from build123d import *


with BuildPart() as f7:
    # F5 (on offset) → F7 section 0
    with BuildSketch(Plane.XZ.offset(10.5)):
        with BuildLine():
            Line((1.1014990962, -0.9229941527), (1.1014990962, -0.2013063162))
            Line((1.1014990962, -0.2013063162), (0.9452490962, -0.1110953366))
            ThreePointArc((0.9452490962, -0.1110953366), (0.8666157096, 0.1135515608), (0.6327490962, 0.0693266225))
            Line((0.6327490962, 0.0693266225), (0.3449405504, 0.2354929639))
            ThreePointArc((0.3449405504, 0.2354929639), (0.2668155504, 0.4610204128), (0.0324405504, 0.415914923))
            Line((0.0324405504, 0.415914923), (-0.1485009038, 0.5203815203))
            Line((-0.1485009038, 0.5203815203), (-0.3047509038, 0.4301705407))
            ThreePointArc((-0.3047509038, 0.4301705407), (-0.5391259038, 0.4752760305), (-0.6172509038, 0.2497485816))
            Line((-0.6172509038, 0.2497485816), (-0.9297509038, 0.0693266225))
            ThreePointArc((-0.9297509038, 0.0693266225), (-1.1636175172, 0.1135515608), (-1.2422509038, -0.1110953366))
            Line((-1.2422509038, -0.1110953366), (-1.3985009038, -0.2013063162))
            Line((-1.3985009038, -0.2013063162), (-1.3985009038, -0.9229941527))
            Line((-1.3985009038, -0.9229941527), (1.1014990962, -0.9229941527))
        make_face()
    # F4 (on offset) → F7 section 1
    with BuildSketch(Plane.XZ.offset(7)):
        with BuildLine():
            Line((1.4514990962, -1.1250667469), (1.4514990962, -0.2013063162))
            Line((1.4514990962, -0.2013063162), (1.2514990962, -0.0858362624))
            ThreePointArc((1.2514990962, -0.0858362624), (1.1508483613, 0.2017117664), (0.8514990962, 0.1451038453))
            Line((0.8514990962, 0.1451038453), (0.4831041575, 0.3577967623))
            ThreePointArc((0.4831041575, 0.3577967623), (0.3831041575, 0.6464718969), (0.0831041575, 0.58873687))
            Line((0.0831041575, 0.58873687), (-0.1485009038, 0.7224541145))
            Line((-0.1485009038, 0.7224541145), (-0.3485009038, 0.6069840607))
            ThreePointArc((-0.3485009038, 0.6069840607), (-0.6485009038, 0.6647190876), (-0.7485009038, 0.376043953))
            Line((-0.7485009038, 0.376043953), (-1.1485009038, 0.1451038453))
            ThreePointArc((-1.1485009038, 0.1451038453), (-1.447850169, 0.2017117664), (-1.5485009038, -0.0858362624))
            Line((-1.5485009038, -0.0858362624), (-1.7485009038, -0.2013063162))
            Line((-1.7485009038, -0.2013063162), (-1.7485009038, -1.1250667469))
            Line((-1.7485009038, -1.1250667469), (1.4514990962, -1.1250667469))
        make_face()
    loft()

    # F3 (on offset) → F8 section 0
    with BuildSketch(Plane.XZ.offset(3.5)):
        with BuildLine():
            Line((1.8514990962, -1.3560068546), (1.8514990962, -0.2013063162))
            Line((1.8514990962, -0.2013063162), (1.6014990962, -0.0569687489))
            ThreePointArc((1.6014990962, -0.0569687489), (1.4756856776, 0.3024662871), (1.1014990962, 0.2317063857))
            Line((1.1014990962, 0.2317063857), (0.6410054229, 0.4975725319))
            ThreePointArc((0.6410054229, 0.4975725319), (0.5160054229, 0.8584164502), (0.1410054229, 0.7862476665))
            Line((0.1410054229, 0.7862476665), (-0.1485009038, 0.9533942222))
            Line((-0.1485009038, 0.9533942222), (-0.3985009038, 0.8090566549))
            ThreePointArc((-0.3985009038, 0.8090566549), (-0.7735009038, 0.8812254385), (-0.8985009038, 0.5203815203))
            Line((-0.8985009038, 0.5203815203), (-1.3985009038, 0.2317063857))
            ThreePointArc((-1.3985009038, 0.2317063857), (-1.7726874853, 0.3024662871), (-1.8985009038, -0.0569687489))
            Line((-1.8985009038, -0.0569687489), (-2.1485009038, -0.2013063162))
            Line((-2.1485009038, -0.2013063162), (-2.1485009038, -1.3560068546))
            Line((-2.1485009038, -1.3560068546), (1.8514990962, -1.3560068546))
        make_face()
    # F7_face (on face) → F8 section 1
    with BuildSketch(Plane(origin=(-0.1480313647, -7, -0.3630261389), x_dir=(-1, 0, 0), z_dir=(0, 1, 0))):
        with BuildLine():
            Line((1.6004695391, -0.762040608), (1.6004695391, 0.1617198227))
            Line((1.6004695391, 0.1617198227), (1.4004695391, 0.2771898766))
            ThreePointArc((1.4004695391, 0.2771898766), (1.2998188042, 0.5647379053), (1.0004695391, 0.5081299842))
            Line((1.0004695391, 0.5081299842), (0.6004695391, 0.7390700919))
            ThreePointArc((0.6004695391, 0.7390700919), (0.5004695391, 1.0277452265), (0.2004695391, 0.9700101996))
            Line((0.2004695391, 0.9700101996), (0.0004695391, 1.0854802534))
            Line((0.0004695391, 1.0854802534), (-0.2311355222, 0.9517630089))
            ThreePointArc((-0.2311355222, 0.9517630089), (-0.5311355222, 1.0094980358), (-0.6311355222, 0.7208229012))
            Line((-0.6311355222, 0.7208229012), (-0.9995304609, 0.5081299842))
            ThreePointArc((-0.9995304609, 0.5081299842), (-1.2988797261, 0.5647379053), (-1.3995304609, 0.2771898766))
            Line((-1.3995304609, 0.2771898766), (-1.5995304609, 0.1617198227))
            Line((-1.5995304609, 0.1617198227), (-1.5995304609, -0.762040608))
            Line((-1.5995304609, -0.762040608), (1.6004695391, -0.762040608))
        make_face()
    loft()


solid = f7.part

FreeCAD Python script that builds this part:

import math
import FreeCAD as App
import Part
import Sketcher
Q = App.Units.Quantity

doc = App.newDocument("Part")
body = doc.addObject("PartDesign::Body", "Body")

# Sketch on XZ plane
sketch1 = body.newObject("Sketcher::SketchObject", "Sketch")
sketch1.AttachmentSupport = (doc.getObject("XZ_Plane"), [""])
sketch1.MapMode = "FlatFace"
sketch1.AttachmentOffset = App.Placement(App.Vector(0, 0, 10.5), App.Rotation())
sketch1.addGeometry([
    Part.LineSegment(App.Vector(1.1, -0.92, 0), App.Vector(1.1, -0.2, 0)),  # 0
    Part.LineSegment(App.Vector(1.1, -0.2, 0), App.Vector(0.95, -0.11, 0)),  # 1
    Part.ArcOfCircle(Part.Circle(App.Vector(0.78, -0.04, 0), App.Vector(0, 0, 1), 0.18), math.radians(-21), math.radians(141)),  # 2
    Part.LineSegment(App.Vector(0.63, 0.07, 0), App.Vector(0.34, 0.24, 0)),  # 3
    Part.ArcOfCircle(Part.Circle(App.Vector(0.18, 0.3, 0), App.Vector(0, 0, 1), 0.18), math.radians(-22), math.radians(142)),  # 4
    Part.LineSegment(App.Vector(0.03, 0.42, 0), App.Vector(-0.15, 0.52, 0)),  # 5
    Part.LineSegment(App.Vector(-0.15, 0.52, 0), App.Vector(-0.3, 0.43, 0)),  # 6
    Part.ArcOfCircle(Part.Circle(App.Vector(-0.45, 0.32, 0), App.Vector(0, 0, 1), 0.18), math.radians(38), math.radians(202)),  # 7
    Part.LineSegment(App.Vector(-0.62, 0.25, 0), App.Vector(-0.93, 0.07, 0)),  # 8
    Part.ArcOfCircle(Part.Circle(App.Vector(-1.07, -0.04, 0), App.Vector(0, 0, 1), 0.18), math.radians(39), math.radians(201)),  # 9
    Part.LineSegment(App.Vector(-1.24, -0.11, 0), App.Vector(-1.4, -0.2, 0)),  # 10
    Part.LineSegment(App.Vector(-1.4, -0.2, 0), App.Vector(-1.4, -0.92, 0)),  # 11
    Part.LineSegment(App.Vector(-1.4, -0.92, 0), App.Vector(1.1, -0.92, 0)),  # 12
], False)
sketch1.addConstraint([
    Sketcher.Constraint("Coincident", 0, 2, 1, 1),
    Sketcher.Constraint("Coincident", 1, 2, 2, 1),
    Sketcher.Constraint("Coincident", 2, 2, 3, 1),
    Sketcher.Constraint("Coincident", 3, 2, 4, 1),
    Sketcher.Constraint("Coincident", 4, 2, 5, 1),
    Sketcher.Constraint("Coincident", 5, 2, 6, 1),
    Sketcher.Constraint("Coincident", 6, 2, 7, 1),
    Sketcher.Constraint("Coincident", 7, 2, 8, 1),
    Sketcher.Constraint("Coincident", 8, 2, 9, 1),
    Sketcher.Constraint("Coincident", 9, 2, 10, 1),
    Sketcher.Constraint("Coincident", 10, 2, 11, 1),
    Sketcher.Constraint("Coincident", 11, 2, 12, 1),
    Sketcher.Constraint("Coincident", 12, 2, 0, 1),
    Sketcher.Constraint("Vertical", 0),
    Sketcher.Constraint("Vertical", 11),
    Sketcher.Constraint("Horizontal", 12),
    Sketcher.Constraint("Equal", 4, 7),
    Sketcher.Constraint("Equal", 2, 9),
    Sketcher.Constraint("Parallel", 1, 3),
    Sketcher.Constraint("Parallel", 3, 5),
    Sketcher.Constraint("Parallel", 6, 8),
    Sketcher.Constraint("Parallel", 8, 10),
    Sketcher.Constraint("Horizontal", 2, 3, 9, 3),
    Sketcher.Constraint("Horizontal", 2, 2, 8, 2),
    Sketcher.Constraint("Horizontal", 1, 2, 9, 2),
    Sketcher.Constraint("Horizontal", 0, 2, 10, 2),
    Sketcher.Constraint("Equal", 1, 6),
    Sketcher.Constraint("Equal", 6, 10),
    Sketcher.Constraint("Angle", 1, Q("150 deg")),
    Sketcher.Constraint("DistanceX", 12, 1, 12, 2, 2.5),
    Sketcher.Constraint("Radius", 4, 0.182292),
    Sketcher.Constraint("Radius", 2, 0.182466),
    Sketcher.Constraint("DistanceX", 8, 2, 6, 2, 0.625),
    Sketcher.Constraint("DistanceX", 9, 2, 7, 2, 0.625),
    Sketcher.Constraint("DistanceX", -1, 1, 0, 2, 1.101499),
    Sketcher.Constraint("DistanceX", 5, 2, -1, 1, 0.148501),
    Sketcher.Constraint("DistanceX", 2, 2, 1, 2, 0.3125),
    Sketcher.Constraint("DistanceX", 4, 2, 3, 2, 0.3125),
    Sketcher.Constraint("DistanceY", 11, 2, 9, 2, 0.811899),
    Sketcher.Constraint("DistanceY", 2, 3, -1, 1, 0.044468),
    Sketcher.Constraint("DistanceX", -1, 1, 4, 3, 0.17567),
    Sketcher.Constraint("DistanceY", -1, 1, 4, 3, 0.303151),
    Sketcher.Constraint("DistanceX", 7, 3, -1, 1, 0.44798),
])

# Sketch on XZ plane
sketch2 = body.newObject("Sketcher::SketchObject", "Sketch001")
sketch2.AttachmentSupport = (doc.getObject("XZ_Plane"), [""])
sketch2.MapMode = "FlatFace"
sketch2.AttachmentOffset = App.Placement(App.Vector(0, 0, 7), App.Rotation())
sketch2.addGeometry([
    Part.LineSegment(App.Vector(1.45, -1.13, 0), App.Vector(1.45, -0.2, 0)),  # 0
    Part.LineSegment(App.Vector(1.45, -0.2, 0), App.Vector(1.25, -0.09, 0)),  # 1
    Part.ArcOfCircle(Part.Circle(App.Vector(1.03, 0, 0), App.Vector(0, 0, 1), 0.23), math.radians(-21), math.radians(141)),  # 2
    Part.LineSegment(App.Vector(0.85, 0.15, 0), App.Vector(0.48, 0.36, 0)),  # 3
    Part.ArcOfCircle(Part.Circle(App.Vector(0.27, 0.44, 0), App.Vector(0, 0, 1), 0.23), math.radians(-22), math.radians(142)),  # 4
    Part.LineSegment(App.Vector(0.08, 0.59, 0), App.Vector(-0.15, 0.72, 0)),  # 5
    Part.LineSegment(App.Vector(-0.15, 0.72, 0), App.Vector(-0.35, 0.61, 0)),  # 6
    Part.ArcOfCircle(Part.Circle(App.Vector(-0.53, 0.46, 0), App.Vector(0, 0, 1), 0.23), math.radians(38), math.radians(202)),  # 7
    Part.LineSegment(App.Vector(-0.75, 0.38, 0), App.Vector(-1.15, 0.15, 0)),  # 8
    Part.ArcOfCircle(Part.Circle(App.Vector(-1.33, 0, 0), App.Vector(0, 0, 1), 0.23), math.radians(39), math.radians(201)),  # 9
    Part.LineSegment(App.Vector(-1.55, -0.09, 0), App.Vector(-1.75, -0.2, 0)),  # 10
    Part.LineSegment(App.Vector(-1.75, -0.2, 0), App.Vector(-1.75, -1.13, 0)),  # 11
    Part.LineSegment(App.Vector(-1.75, -1.13, 0), App.Vector(1.45, -1.13, 0)),  # 12
], False)
sketch2.addConstraint([
    Sketcher.Constraint("Coincident", 0, 2, 1, 1),
    Sketcher.Constraint("Coincident", 1, 2, 2, 1),
    Sketcher.Constraint("Coincident", 2, 2, 3, 1),
    Sketcher.Constraint("Coincident", 3, 2, 4, 1),
    Sketcher.Constraint("Coincident", 4, 2, 5, 1),
    Sketcher.Constraint("Coincident", 5, 2, 6, 1),
    Sketcher.Constraint("Coincident", 6, 2, 7, 1),
    Sketcher.Constraint("Coincident", 7, 2, 8, 1),
    Sketcher.Constraint("Coincident", 8, 2, 9, 1),
    Sketcher.Constraint("Coincident", 9, 2, 10, 1),
    Sketcher.Constraint("Coincident", 10, 2, 11, 1),
    Sketcher.Constraint("Coincident", 11, 2, 12, 1),
    Sketcher.Constraint("Coincident", 12, 2, 0, 1),
    Sketcher.Constraint("Vertical", 0),
    Sketcher.Constraint("Vertical", 11),
    Sketcher.Constraint("Horizontal", 12),
    Sketcher.Constraint("Equal", 4, 7),
    Sketcher.Constraint("Equal", 2, 9),
    Sketcher.Constraint("Parallel", 1, 3),
    Sketcher.Constraint("Parallel", 3, 5),
    Sketcher.Constraint("Parallel", 6, 8),
    Sketcher.Constraint("Parallel", 8, 10),
    Sketcher.Constraint("Horizontal", 2, 3, 9, 3),
    Sketcher.Constraint("Horizontal", 2, 2, 8, 2),
    Sketcher.Constraint("Horizontal", 1, 2, 9, 2),
    Sketcher.Constraint("Horizontal", 0, 2, 10, 2),
    Sketcher.Constraint("Equal", 1, 6),
    Sketcher.Constraint("Equal", 6, 10),
    Sketcher.Constraint("Angle", 1, Q("150 deg")),
    Sketcher.Constraint("DistanceX", 12, 1, 12, 2, 3.2),
    Sketcher.Constraint("DistanceX", 5, 2, 2, 2, 1.0),
    Sketcher.Constraint("DistanceX", 8, 2, 5, 2, 1.0),
    Sketcher.Constraint("DistanceX", 10, 2, 7, 2, 1.0),
    Sketcher.Constraint("DistanceX", 1, 2, 0, 2, 0.2),
    Sketcher.Constraint("DistanceX", 4, 2, 3, 2, 0.4),
    Sketcher.Constraint("Radius", 2, 0.233556),
    Sketcher.Constraint("Radius", 4, 0.233333),
    Sketcher.Constraint("DistanceY", 0, 1, 0, 2, 0.92376),
    Sketcher.Constraint("DistanceY", -1, 1, 4, 3, 0.444399),
    Sketcher.Constraint("DistanceX", -1, 1, 0, 2, 1.451499),
    Sketcher.Constraint("DistanceY", 2, 3, 7, 3, 0.4632),
    Sketcher.Constraint("DistanceX", -1, 1, 2, 3, 1.03407),
    Sketcher.Constraint("DistanceX", 7, 3, 4, 3, 0.798272),
])

additiveloft = body.newObject("PartDesign::AdditiveLoft", "AdditiveLoft")
additiveloft.Profile = sketch1
additiveloft.Sections = [sketch2]

# Sketch on XZ plane
sketch3 = body.newObject("Sketcher::SketchObject", "Sketch002")
sketch3.AttachmentSupport = (doc.getObject("XZ_Plane"), [""])
sketch3.MapMode = "FlatFace"
sketch3.AttachmentOffset = App.Placement(App.Vector(0, 0, 3.5), App.Rotation())
sketch3.addGeometry([
    Part.LineSegment(App.Vector(1.85, -1.36, 0), App.Vector(1.85, -0.2, 0)),  # 0
    Part.LineSegment(App.Vector(1.85, -0.2, 0), App.Vector(1.6, -0.06, 0)),  # 1
    Part.ArcOfCircle(Part.Circle(App.Vector(1.33, 0.05, 0), App.Vector(0, 0, 1), 0.29), math.radians(-21), math.radians(141)),  # 2
    Part.LineSegment(App.Vector(1.1, 0.23, 0), App.Vector(0.64, 0.5, 0)),  # 3
    Part.ArcOfCircle(Part.Circle(App.Vector(0.37, 0.61, 0), App.Vector(0, 0, 1), 0.29), math.radians(-22), math.radians(142)),  # 4
    Part.LineSegment(App.Vector(0.14, 0.79, 0), App.Vector(-0.15, 0.95, 0)),  # 5
    Part.LineSegment(App.Vector(-0.15, 0.95, 0), App.Vector(-0.4, 0.81, 0)),  # 6
    Part.ArcOfCircle(Part.Circle(App.Vector(-0.63, 0.63, 0), App.Vector(0, 0, 1), 0.29), math.radians(38), math.radians(202)),  # 7
    Part.LineSegment(App.Vector(-0.9, 0.52, 0), App.Vector(-1.4, 0.23, 0)),  # 8
    Part.ArcOfCircle(Part.Circle(App.Vector(-1.63, 0.05, 0), App.Vector(0, 0, 1), 0.29), math.radians(39), math.radians(201)),  # 9
    Part.LineSegment(App.Vector(-1.9, -0.06, 0), App.Vector(-2.15, -0.2, 0)),  # 10
    Part.LineSegment(App.Vector(-2.15, -0.2, 0), App.Vector(-2.15, -1.36, 0)),  # 11
    Part.LineSegment(App.Vector(-2.15, -1.36, 0), App.Vector(1.85, -1.36, 0)),  # 12
], False)
sketch3.addConstraint([
    Sketcher.Constraint("Coincident", 0, 2, 1, 1),
    Sketcher.Constraint("Coincident", 1, 2, 2, 1),
    Sketcher.Constraint("Coincident", 2, 2, 3, 1),
    Sketcher.Constraint("Coincident", 3, 2, 4, 1),
    Sketcher.Constraint("Coincident", 4, 2, 5, 1),
    Sketcher.Constraint("Coincident", 5, 2, 6, 1),
    Sketcher.Constraint("Coincident", 6, 2, 7, 1),
    Sketcher.Constraint("Coincident", 7, 2, 8, 1),
    Sketcher.Constraint("Coincident", 8, 2, 9, 1),
    Sketcher.Constraint("Coincident", 9, 2, 10, 1),
    Sketcher.Constraint("Coincident", 10, 2, 11, 1),
    Sketcher.Constraint("Coincident", 11, 2, 12, 1),
    Sketcher.Constraint("Coincident", 12, 2, 0, 1),
    Sketcher.Constraint("Vertical", 0),
    Sketcher.Constraint("Vertical", 11),
    Sketcher.Constraint("Horizontal", 12),
    Sketcher.Constraint("Equal", 4, 7),
    Sketcher.Constraint("Equal", 2, 9),
    Sketcher.Constraint("Parallel", 1, 3),
    Sketcher.Constraint("Parallel", 3, 5),
    Sketcher.Constraint("Parallel", 6, 8),
    Sketcher.Constraint("Parallel", 8, 10),
    Sketcher.Constraint("Horizontal", 2, 3, 9, 3),
    Sketcher.Constraint("Horizontal", 2, 2, 8, 2),
    Sketcher.Constraint("Horizontal", 1, 2, 9, 2),
    Sketcher.Constraint("Horizontal", 0, 2, 10, 2),
    Sketcher.Constraint("Equal", 1, 6),
    Sketcher.Constraint("Equal", 6, 10),
    Sketcher.Constraint("DistanceX", 12, 1, 12, 2, 4.0),
    Sketcher.Constraint("Angle", 1, Q("150 deg")),
    Sketcher.Constraint("DistanceX", 8, 2, 6, 2, 1.0),
    Sketcher.Constraint("DistanceX", 9, 2, 7, 2, 1.0),
    Sketcher.Constraint("DistanceX", 2, 2, 1, 2, 0.5),
    Sketcher.Constraint("DistanceX", 4, 2, 3, 2, 0.5),
    Sketcher.Constraint("DistanceX", 1, 2, 0, 2, 0.25),
    Sketcher.Constraint("DistanceY", 0, 1, 0, 2, 1.154701),
    Sketcher.Constraint("Radius", 2, 0.291945),
    Sketcher.Constraint("Radius", 4, 0.291667),
    Sketcher.Constraint("DistanceY", 2, 3, 7, 3, 0.579),
    Sketcher.Constraint("DistanceX", -1, 1, 0, 2, 1.851499),
    Sketcher.Constraint("DistanceY", 1, 2, -1, 1, 0.056969),
    Sketcher.Constraint("DistanceY", -1, 1, 7, 2, 0.520382),
    Sketcher.Constraint("DistanceX", 4, 3, 2, 3, 0.959541),
])

# Sketch on XZ plane
sketch4 = body.newObject("Sketcher::SketchObject", "Sketch003")
sketch4.AttachmentSupport = (doc.getObject("XZ_Plane"), [""])
sketch4.MapMode = "FlatFace"
sketch4.AttachmentOffset = App.Placement(App.Vector(0, 0, 7), App.Rotation())
sketch4.addGeometry([
    Part.LineSegment(App.Vector(-1.75, -1.13, 0), App.Vector(-1.75, -0.2, 0)),  # 0
    Part.LineSegment(App.Vector(-1.75, -0.2, 0), App.Vector(-1.55, -0.09, 0)),  # 1
    Part.ArcOfCircle(Part.Circle(App.Vector(-1.33, 0, 0), App.Vector(0, 0, 1), 0.23), math.radians(39), math.radians(201)),  # 2
    Part.LineSegment(App.Vector(-1.15, 0.15, 0), App.Vector(-0.75, 0.38, 0)),  # 3
    Part.ArcOfCircle(Part.Circle(App.Vector(-0.53, 0.46, 0), App.Vector(0, 0, 1), 0.23), math.radians(38), math.radians(202)),  # 4
    Part.LineSegment(App.Vector(-0.35, 0.61, 0), App.Vector(-0.15, 0.72, 0)),  # 5
    Part.LineSegment(App.Vector(-0.15, 0.72, 0), App.Vector(0.08, 0.59, 0)),  # 6
    Part.ArcOfCircle(Part.Circle(App.Vector(0.27, 0.44, 0), App.Vector(0, 0, 1), 0.23), math.radians(-22), math.radians(142)),  # 7
    Part.LineSegment(App.Vector(0.48, 0.36, 0), App.Vector(0.85, 0.15, 0)),  # 8
    Part.ArcOfCircle(Part.Circle(App.Vector(1.03, 0, 0), App.Vector(0, 0, 1), 0.23), math.radians(-21), math.radians(141)),  # 9
    Part.LineSegment(App.Vector(1.25, -0.09, 0), App.Vector(1.45, -0.2, 0)),  # 10
    Part.LineSegment(App.Vector(1.45, -0.2, 0), App.Vector(1.45, -1.13, 0)),  # 11
    Part.LineSegment(App.Vector(1.45, -1.13, 0), App.Vector(-1.75, -1.13, 0)),  # 12
], False)
sketch4.addConstraint([
    Sketcher.Constraint("Coincident", 0, 2, 1, 1),
    Sketcher.Constraint("Coincident", 1, 2, 2, 2),
    Sketcher.Constraint("Coincident", 2, 1, 3, 1),
    Sketcher.Constraint("Coincident", 3, 2, 4, 2),
    Sketcher.Constraint("Coincident", 4, 1, 5, 1),
    Sketcher.Constraint("Coincident", 5, 2, 6, 1),
    Sketcher.Constraint("Coincident", 6, 2, 7, 2),
    Sketcher.Constraint("Coincident", 7, 1, 8, 1),
    Sketcher.Constraint("Coincident", 8, 2, 9, 2),
    Sketcher.Constraint("Coincident", 9, 1, 10, 1),
    Sketcher.Constraint("Coincident", 10, 2, 11, 1),
    Sketcher.Constraint("Coincident", 11, 2, 12, 1),
    Sketcher.Constraint("Coincident", 12, 2, 0, 1),
    Sketcher.Constraint("Vertical", 0),
    Sketcher.Constraint("Vertical", 11),
    Sketcher.Constraint("Horizontal", 12),
    Sketcher.Constraint("Equal", 4, 7),
    Sketcher.Constraint("Equal", 2, 9),
    Sketcher.Constraint("Parallel", 1, 3),
    Sketcher.Constraint("Parallel", 3, 5),
    Sketcher.Constraint("Parallel", 6, 8),
    Sketcher.Constraint("Parallel", 8, 10),
    Sketcher.Constraint("Horizontal", 2, 3, 9, 3),
    Sketcher.Constraint("Horizontal", 2, 1, 8, 2),
    Sketcher.Constraint("Horizontal", 1, 2, 9, 1),
    Sketcher.Constraint("Horizontal", 0, 2, 10, 2),
    Sketcher.Constraint("Equal", 1, 5),
    Sketcher.Constraint("Equal", 5, 10),
    Sketcher.Constraint("Angle", 1, Q("30 deg")),
    Sketcher.Constraint("DistanceX", 12, 2, 12, 1, 3.2),
    Sketcher.Constraint("DistanceX", 2, 1, 5, 2, 1.0),
    Sketcher.Constraint("DistanceX", 5, 2, 8, 2, 1.0),
    Sketcher.Constraint("DistanceX", 12, 2, 3, 2, 1.0),
    Sketcher.Constraint("DistanceX", 0, 2, 1, 2, 0.2),
    Sketcher.Constraint("DistanceX", 6, 2, 7, 1, 0.4),
    Sketcher.Constraint("Radius", 2, 0.233556),
    Sketcher.Constraint("Radius", 4, 0.233333),
    Sketcher.Constraint("DistanceY", 0, 1, 0, 2, 0.92376),
    Sketcher.Constraint("DistanceY", -1, 1, 7, 3, 0.444399),
    Sketcher.Constraint("DistanceX", 0, 2, -1, 1, 1.748501),
    Sketcher.Constraint("DistanceY", 2, 3, 4, 3, 0.4632),
    Sketcher.Constraint("DistanceX", -1, 1, 9, 3, 1.03407),
    Sketcher.Constraint("DistanceX", 4, 3, 7, 3, 0.798272),
])

additiveloft2 = body.newObject("PartDesign::AdditiveLoft", "AdditiveLoft001")
additiveloft2.Profile = sketch3
additiveloft2.Sections = [sketch4]

doc.recompute()
